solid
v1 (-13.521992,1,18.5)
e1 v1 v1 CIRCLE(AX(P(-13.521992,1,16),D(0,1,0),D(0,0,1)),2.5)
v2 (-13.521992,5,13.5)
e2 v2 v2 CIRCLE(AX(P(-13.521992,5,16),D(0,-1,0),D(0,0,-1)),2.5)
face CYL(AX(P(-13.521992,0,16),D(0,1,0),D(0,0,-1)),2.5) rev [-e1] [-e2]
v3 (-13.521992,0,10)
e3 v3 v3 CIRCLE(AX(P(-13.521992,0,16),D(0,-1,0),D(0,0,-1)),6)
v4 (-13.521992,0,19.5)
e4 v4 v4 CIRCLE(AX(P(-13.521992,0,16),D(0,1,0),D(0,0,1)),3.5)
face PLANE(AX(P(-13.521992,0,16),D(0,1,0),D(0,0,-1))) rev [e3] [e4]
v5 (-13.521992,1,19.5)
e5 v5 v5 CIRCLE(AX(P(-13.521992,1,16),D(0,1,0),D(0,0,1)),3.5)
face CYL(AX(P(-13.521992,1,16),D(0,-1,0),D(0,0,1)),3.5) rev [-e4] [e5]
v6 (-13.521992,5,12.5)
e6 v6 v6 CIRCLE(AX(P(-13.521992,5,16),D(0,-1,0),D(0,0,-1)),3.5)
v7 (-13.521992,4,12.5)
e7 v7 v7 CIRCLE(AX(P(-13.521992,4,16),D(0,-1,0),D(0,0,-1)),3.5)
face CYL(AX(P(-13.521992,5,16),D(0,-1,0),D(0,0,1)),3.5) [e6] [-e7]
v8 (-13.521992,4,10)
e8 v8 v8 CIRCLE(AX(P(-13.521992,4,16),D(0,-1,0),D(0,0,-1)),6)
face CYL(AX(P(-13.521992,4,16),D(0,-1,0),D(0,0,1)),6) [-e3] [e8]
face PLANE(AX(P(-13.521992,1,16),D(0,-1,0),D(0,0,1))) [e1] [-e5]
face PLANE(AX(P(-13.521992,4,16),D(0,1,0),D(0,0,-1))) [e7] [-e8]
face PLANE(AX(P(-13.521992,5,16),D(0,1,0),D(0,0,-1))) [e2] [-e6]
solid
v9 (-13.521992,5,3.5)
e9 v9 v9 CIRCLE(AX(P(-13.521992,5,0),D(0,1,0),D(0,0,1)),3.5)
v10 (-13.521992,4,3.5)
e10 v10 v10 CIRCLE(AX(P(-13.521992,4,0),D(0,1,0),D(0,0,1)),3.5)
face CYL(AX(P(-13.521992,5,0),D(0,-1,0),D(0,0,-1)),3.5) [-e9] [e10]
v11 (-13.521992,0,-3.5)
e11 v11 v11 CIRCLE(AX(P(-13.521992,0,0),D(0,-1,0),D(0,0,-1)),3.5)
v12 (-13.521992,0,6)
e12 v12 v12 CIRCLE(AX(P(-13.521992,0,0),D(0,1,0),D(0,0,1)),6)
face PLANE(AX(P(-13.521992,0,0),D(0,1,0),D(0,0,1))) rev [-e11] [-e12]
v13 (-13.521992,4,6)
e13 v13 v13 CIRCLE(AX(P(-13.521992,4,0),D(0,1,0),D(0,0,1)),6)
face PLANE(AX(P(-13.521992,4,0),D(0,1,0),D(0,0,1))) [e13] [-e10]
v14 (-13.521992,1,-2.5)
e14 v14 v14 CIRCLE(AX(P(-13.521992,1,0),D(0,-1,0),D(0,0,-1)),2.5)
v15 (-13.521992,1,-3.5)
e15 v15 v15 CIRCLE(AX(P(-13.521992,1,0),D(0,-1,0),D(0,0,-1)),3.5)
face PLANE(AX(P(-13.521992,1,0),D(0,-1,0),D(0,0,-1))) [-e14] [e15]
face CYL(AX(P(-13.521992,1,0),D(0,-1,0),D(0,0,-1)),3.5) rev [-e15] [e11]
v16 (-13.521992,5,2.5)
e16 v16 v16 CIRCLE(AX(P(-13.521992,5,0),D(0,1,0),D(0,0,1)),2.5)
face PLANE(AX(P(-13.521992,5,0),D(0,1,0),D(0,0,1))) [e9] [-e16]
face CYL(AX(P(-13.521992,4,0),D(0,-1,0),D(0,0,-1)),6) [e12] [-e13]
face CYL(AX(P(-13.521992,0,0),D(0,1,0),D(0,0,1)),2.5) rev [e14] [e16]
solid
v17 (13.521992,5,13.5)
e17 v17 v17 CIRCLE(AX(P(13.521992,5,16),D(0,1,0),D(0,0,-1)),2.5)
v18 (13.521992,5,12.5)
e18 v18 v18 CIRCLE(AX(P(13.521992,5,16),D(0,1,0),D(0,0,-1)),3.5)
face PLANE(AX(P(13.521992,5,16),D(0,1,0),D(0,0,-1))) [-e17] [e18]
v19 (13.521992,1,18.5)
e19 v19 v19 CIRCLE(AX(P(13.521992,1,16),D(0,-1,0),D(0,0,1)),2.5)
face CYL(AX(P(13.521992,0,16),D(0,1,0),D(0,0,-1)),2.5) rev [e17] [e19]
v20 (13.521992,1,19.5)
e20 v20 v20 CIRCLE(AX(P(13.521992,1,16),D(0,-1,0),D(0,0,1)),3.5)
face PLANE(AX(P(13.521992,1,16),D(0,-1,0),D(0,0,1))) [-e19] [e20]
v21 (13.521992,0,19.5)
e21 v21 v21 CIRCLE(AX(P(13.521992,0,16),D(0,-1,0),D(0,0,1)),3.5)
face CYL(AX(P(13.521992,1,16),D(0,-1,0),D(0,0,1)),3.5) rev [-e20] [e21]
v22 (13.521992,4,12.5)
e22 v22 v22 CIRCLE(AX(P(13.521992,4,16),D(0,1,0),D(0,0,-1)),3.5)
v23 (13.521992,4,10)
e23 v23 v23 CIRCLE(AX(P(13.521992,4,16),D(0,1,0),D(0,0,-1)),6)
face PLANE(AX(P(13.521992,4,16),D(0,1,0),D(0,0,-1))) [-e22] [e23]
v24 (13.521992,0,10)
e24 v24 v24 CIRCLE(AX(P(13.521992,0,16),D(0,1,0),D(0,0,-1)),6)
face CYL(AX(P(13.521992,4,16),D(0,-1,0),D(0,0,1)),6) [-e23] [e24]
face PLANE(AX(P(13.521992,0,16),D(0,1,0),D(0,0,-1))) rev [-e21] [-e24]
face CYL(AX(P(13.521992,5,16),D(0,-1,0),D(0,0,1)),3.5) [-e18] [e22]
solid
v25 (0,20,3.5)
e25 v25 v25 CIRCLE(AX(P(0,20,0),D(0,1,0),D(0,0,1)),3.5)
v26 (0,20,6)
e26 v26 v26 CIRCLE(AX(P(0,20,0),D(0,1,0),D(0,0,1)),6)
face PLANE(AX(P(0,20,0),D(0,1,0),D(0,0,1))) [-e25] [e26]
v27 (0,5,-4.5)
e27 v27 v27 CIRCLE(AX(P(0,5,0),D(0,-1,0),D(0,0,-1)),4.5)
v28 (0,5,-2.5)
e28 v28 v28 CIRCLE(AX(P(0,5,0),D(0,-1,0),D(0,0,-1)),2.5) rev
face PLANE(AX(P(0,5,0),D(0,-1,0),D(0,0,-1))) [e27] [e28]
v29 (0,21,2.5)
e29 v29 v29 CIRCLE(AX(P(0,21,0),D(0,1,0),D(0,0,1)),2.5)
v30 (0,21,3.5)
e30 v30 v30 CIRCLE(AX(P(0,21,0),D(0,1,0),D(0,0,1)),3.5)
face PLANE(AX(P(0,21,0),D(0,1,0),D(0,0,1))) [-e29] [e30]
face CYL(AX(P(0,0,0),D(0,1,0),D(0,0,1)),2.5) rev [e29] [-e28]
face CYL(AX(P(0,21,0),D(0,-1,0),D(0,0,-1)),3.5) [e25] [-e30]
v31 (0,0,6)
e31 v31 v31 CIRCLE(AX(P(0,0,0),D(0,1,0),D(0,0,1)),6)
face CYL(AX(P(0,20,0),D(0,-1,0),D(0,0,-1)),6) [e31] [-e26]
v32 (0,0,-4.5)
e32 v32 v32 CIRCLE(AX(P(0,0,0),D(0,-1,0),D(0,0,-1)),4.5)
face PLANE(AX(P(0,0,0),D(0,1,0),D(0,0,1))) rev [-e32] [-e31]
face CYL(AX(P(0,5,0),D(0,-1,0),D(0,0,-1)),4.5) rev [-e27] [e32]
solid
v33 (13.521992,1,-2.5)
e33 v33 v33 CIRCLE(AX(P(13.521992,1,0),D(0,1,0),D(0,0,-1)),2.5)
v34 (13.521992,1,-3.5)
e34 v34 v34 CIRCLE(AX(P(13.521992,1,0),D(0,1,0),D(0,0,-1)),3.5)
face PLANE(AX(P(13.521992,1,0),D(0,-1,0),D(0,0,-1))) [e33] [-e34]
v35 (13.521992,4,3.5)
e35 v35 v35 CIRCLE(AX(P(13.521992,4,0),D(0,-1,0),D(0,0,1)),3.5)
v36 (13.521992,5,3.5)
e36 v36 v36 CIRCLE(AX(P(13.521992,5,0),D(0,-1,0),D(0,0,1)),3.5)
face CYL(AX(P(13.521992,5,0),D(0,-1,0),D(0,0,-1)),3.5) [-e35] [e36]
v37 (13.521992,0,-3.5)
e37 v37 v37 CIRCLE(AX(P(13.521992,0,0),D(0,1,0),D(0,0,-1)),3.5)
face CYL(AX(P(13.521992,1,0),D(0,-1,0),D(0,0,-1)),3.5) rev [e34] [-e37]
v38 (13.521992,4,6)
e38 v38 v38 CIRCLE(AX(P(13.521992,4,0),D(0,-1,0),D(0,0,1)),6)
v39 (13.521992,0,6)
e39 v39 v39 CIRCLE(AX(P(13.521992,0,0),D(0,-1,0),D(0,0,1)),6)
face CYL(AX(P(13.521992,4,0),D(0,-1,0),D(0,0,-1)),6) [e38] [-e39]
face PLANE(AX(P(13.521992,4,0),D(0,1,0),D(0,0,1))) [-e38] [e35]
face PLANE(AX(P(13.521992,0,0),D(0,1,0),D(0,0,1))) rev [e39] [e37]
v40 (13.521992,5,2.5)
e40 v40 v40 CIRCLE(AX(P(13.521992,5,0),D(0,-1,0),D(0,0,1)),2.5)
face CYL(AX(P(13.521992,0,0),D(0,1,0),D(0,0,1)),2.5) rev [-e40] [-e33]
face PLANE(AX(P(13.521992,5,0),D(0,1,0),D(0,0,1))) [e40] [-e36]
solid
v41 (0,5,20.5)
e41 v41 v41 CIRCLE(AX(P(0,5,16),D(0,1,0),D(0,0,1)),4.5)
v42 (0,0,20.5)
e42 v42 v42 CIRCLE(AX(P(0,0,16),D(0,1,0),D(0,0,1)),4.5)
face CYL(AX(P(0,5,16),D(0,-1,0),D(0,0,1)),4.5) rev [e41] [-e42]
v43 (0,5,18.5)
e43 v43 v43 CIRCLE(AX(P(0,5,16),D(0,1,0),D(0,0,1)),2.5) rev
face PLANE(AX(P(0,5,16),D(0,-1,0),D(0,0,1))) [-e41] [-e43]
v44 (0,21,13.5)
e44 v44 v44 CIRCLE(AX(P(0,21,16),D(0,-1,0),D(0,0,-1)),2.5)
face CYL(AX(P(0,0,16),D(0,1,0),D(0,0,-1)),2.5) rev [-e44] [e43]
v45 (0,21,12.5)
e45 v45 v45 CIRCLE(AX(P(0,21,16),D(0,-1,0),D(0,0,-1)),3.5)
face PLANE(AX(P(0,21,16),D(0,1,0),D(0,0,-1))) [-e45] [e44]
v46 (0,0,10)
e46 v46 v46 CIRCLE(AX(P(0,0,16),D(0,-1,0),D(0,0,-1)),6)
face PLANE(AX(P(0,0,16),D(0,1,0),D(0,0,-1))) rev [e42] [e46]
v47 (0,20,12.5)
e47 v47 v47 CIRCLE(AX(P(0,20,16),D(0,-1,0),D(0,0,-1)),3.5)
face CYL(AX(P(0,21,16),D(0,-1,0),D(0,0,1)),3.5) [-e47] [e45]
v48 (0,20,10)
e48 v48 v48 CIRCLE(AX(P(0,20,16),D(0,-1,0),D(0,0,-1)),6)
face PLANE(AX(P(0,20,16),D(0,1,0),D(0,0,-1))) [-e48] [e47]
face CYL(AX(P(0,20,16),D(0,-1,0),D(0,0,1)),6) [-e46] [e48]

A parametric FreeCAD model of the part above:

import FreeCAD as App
import Part
import Sketcher

V = App.Vector

doc = App.newDocument("Part")
body = doc.addObject("PartDesign::Body", "Body")

sketch1 = body.newObject("Sketcher::SketchObject", "Sketch")
sketch1.AttachmentSupport = (doc.getObject("XZ_Plane"), [""])
sketch1.MapMode = "FlatFace"
sketch1.addGeometry(Part.Circle(V(0, 0, 0), V(0, 0, 1), 6), False)
sketch1.addConstraint(Sketcher.Constraint("Coincident", 0, 3, -1, 1))
sketch1.addConstraint(Sketcher.Constraint("Diameter", 0, 12.0))
pad1 = body.newObject("PartDesign::Pad", "Pad")
pad1.Profile = sketch1
pad1.Length = 20
pad1.Reversed = True

sketch2 = body.newObject("Sketcher::SketchObject", "Sketch001")
sketch2.AttachmentSupport = (doc.getObject("XZ_Plane"), [""])
sketch2.MapMode = "FlatFace"
sketch2.AttachmentOffset = App.Placement(V(0, 0, -20), App.Rotation())
sketch2.addGeometry(Part.Circle(V(0, 0, 0), V(0, 0, 1), 2.5), False)
sketch2.addConstraint(Sketcher.Constraint("Coincident", 0, 3, -1, 1))
sketch2.addConstraint(Sketcher.Constraint("Diameter", 0, 5.0))
pocket1 = body.newObject("PartDesign::Pocket", "Pocket")
pocket1.Profile = sketch2
pocket1.Length = 20
pocket1.Reversed = True

sketch3 = body.newObject("Sketcher::SketchObject", "Sketch002")
sketch3.AttachmentSupport = (doc.getObject("XZ_Plane"), [""])
sketch3.MapMode = "FlatFace"
sketch3.AttachmentOffset = App.Placement(V(0, 0, -21), App.Rotation())
sketch3.addGeometry(Part.Circle(V(0, 0, 0), V(0, 0, 1), 3.5), False)
sketch3.addGeometry(Part.Circle(V(0, 0, 0), V(0, 0, 1), 2.5), False)
sketch3.addConstraint(Sketcher.Constraint("Coincident", 0, 3, -1, 1))
sketch3.addConstraint(Sketcher.Constraint("Coincident", 1, 3, -1, 1))
sketch3.addConstraint(Sketcher.Constraint("Diameter", 0, 7.0))
sketch3.addConstraint(Sketcher.Constraint("Diameter", 1, 5.0))
pad2 = body.newObject("PartDesign::Pad", "Pad001")
pad2.Profile = sketch3
pad2.Length = 1

sketch4 = body.newObject("Sketcher::SketchObject", "Sketch003")
sketch4.AttachmentSupport = (doc.getObject("XZ_Plane"), [""])
sketch4.MapMode = "FlatFace"
sketch4.addGeometry(Part.Circle(V(0, 0, 0), V(0, 0, 1), 4.5), False)
sketch4.addConstraint(Sketcher.Constraint("Coincident", 0, 3, -1, 1))
sketch4.addConstraint(Sketcher.Constraint("Diameter", 0, 9.0))
pocket2 = body.newObject("PartDesign::Pocket", "Pocket001")
pocket2.Profile = sketch4
pocket2.Length = 5
body2 = doc.addObject("PartDesign::Body", "Body001")

sketch5 = body2.newObject("Sketcher::SketchObject", "Sketch004")
sketch5.AttachmentSupport = (doc.getObject("XZ_Plane001"), [""])
sketch5.MapMode = "FlatFace"
sketch5.addGeometry(Part.Circle(V(-14, 0, 0), V(0, 0, 1), 6), False)
sketch5.addConstraint(Sketcher.Constraint("PointOnObject", 0, 3, -1))
sketch5.addConstraint(Sketcher.Constraint("Diameter", 0, 12.0))
sketch5.addConstraint(Sketcher.Constraint("DistanceX", 0, 3, -1, 1, 13.521992))
pad3 = body2.newObject("PartDesign::Pad", "Pad002")
pad3.Profile = sketch5
pad3.Length = 4
pad3.Reversed = True

sketch6 = body2.newObject("Sketcher::SketchObject", "Sketch005")
sketch6.AttachmentSupport = (doc.getObject("XZ_Plane001"), [""])
sketch6.MapMode = "FlatFace"
sketch6.AttachmentOffset = App.Placement(V(0, 0, -4), App.Rotation())
sketch6.addGeometry(Part.Circle(V(-13.5, 0, 0), V(0, 0, 1), 2.5), False)
sketch6.addConstraint(Sketcher.Constraint("PointOnObject", 0, 3, -1))
sketch6.addConstraint(Sketcher.Constraint("Diameter", 0, 5.0))
sketch6.addConstraint(Sketcher.Constraint("DistanceX", 0, 3, -1, 1, 13.521992))
pocket3 = body2.newObject("PartDesign::Pocket", "Pocket002")
pocket3.Profile = sketch6
pocket3.Length = 4
pocket3.Reversed = True

sketch7 = body2.newObject("Sketcher::SketchObject", "Sketch006")
sketch7.AttachmentSupport = (doc.getObject("XZ_Plane001"), [""])
sketch7.MapMode = "FlatFace"
sketch7.AttachmentOffset = App.Placement(V(0, 0, -4), App.Rotation())
sketch7.addGeometry(Part.Circle(V(-13.5, 0, 0), V(0, 0, 1), 3.5), False)
sketch7.addGeometry(Part.Circle(V(-13.5, 0, 0), V(0, 0, 1), 2.5), False)
sketch7.addConstraint(Sketcher.Constraint("Coincident", 1, 3, 0, 3))
sketch7.addConstraint(Sketcher.Constraint("PointOnObject", 0, 3, -1))
sketch7.addConstraint(Sketcher.Constraint("Diameter", 0, 7.0))
sketch7.addConstraint(Sketcher.Constraint("Diameter", 1, 5.0))
sketch7.addConstraint(Sketcher.Constraint("DistanceX", 0, 3, -1, 1, 13.521992))
pad4 = body2.newObject("PartDesign::Pad", "Pad003")
pad4.Profile = sketch7
pad4.Length = 1
pad4.Reversed = True

sketch8 = body2.newObject("Sketcher::SketchObject", "Sketch007")
sketch8.AttachmentSupport = (doc.getObject("XZ_Plane001"), [""])
sketch8.MapMode = "FlatFace"
sketch8.addGeometry(Part.Circle(V(-13.5, 0, 0), V(0, 0, 1), 3.5), False)
sketch8.addGeometry(Part.Circle(V(-13.5, 0, 0), V(0, 0, 1), 2.5), False)
sketch8.addConstraint(Sketcher.Constraint("Coincident", 1, 3, 0, 3))
sketch8.addConstraint(Sketcher.Constraint("PointOnObject", 0, 3, -1))
sketch8.addConstraint(Sketcher.Constraint("Diameter", 0, 7.0))
sketch8.addConstraint(Sketcher.Constraint("Diameter", 1, 5.0))
sketch8.addConstraint(Sketcher.Constraint("DistanceX", 0, 3, -1, 1, 13.521992))
pocket4 = body2.newObject("PartDesign::Pocket", "Pocket003")
pocket4.Profile = sketch8
pocket4.Length = 1
body3 = doc.addObject("PartDesign::Body", "Body002")
doc.recompute()

mirroring = doc.addObject("Part::Mirroring", "Mirroring")
mirroring.Source = body2
mirroring.Base = V(0, 0, 0)
mirroring.Normal = V(1, 0, 0)
body3.BaseFeature = mirroring
doc.recompute()
body4 = doc.addObject("PartDesign::Body", "Body003")
doc.recompute()

mirroring2 = doc.addObject("Part::Mirroring", "Mirroring001")
mirroring2.Source = body3
mirroring2.Base = V(0, 0, 8)
mirroring2.Normal = V(0, 0, 1)
body4.BaseFeature = mirroring2
doc.recompute()
body5 = doc.addObject("PartDesign::Body", "Body004")
doc.recompute()

mirroring3 = doc.addObject("Part::Mirroring", "Mirroring002")
mirroring3.Source = body
mirroring3.Base = V(0, 0, 8)
mirroring3.Normal = V(0, 0, 1)
body5.BaseFeature = mirroring3
doc.recompute()
body6 = doc.addObject("PartDesign::Body", "Body005")
doc.recompute()

mirroring4 = doc.addObject("Part::Mirroring", "Mirroring003")
mirroring4.Source = body2
mirroring4.Base = V(0, 0, 8)
mirroring4.Normal = V(0, 0, 1)
body6.BaseFeature = mirroring4
doc.recompute()
mirroring.Visibility = False
mirroring2.Visibility = False
mirroring3.Visibility = False
mirroring4.Visibility = False

doc.recompute()
